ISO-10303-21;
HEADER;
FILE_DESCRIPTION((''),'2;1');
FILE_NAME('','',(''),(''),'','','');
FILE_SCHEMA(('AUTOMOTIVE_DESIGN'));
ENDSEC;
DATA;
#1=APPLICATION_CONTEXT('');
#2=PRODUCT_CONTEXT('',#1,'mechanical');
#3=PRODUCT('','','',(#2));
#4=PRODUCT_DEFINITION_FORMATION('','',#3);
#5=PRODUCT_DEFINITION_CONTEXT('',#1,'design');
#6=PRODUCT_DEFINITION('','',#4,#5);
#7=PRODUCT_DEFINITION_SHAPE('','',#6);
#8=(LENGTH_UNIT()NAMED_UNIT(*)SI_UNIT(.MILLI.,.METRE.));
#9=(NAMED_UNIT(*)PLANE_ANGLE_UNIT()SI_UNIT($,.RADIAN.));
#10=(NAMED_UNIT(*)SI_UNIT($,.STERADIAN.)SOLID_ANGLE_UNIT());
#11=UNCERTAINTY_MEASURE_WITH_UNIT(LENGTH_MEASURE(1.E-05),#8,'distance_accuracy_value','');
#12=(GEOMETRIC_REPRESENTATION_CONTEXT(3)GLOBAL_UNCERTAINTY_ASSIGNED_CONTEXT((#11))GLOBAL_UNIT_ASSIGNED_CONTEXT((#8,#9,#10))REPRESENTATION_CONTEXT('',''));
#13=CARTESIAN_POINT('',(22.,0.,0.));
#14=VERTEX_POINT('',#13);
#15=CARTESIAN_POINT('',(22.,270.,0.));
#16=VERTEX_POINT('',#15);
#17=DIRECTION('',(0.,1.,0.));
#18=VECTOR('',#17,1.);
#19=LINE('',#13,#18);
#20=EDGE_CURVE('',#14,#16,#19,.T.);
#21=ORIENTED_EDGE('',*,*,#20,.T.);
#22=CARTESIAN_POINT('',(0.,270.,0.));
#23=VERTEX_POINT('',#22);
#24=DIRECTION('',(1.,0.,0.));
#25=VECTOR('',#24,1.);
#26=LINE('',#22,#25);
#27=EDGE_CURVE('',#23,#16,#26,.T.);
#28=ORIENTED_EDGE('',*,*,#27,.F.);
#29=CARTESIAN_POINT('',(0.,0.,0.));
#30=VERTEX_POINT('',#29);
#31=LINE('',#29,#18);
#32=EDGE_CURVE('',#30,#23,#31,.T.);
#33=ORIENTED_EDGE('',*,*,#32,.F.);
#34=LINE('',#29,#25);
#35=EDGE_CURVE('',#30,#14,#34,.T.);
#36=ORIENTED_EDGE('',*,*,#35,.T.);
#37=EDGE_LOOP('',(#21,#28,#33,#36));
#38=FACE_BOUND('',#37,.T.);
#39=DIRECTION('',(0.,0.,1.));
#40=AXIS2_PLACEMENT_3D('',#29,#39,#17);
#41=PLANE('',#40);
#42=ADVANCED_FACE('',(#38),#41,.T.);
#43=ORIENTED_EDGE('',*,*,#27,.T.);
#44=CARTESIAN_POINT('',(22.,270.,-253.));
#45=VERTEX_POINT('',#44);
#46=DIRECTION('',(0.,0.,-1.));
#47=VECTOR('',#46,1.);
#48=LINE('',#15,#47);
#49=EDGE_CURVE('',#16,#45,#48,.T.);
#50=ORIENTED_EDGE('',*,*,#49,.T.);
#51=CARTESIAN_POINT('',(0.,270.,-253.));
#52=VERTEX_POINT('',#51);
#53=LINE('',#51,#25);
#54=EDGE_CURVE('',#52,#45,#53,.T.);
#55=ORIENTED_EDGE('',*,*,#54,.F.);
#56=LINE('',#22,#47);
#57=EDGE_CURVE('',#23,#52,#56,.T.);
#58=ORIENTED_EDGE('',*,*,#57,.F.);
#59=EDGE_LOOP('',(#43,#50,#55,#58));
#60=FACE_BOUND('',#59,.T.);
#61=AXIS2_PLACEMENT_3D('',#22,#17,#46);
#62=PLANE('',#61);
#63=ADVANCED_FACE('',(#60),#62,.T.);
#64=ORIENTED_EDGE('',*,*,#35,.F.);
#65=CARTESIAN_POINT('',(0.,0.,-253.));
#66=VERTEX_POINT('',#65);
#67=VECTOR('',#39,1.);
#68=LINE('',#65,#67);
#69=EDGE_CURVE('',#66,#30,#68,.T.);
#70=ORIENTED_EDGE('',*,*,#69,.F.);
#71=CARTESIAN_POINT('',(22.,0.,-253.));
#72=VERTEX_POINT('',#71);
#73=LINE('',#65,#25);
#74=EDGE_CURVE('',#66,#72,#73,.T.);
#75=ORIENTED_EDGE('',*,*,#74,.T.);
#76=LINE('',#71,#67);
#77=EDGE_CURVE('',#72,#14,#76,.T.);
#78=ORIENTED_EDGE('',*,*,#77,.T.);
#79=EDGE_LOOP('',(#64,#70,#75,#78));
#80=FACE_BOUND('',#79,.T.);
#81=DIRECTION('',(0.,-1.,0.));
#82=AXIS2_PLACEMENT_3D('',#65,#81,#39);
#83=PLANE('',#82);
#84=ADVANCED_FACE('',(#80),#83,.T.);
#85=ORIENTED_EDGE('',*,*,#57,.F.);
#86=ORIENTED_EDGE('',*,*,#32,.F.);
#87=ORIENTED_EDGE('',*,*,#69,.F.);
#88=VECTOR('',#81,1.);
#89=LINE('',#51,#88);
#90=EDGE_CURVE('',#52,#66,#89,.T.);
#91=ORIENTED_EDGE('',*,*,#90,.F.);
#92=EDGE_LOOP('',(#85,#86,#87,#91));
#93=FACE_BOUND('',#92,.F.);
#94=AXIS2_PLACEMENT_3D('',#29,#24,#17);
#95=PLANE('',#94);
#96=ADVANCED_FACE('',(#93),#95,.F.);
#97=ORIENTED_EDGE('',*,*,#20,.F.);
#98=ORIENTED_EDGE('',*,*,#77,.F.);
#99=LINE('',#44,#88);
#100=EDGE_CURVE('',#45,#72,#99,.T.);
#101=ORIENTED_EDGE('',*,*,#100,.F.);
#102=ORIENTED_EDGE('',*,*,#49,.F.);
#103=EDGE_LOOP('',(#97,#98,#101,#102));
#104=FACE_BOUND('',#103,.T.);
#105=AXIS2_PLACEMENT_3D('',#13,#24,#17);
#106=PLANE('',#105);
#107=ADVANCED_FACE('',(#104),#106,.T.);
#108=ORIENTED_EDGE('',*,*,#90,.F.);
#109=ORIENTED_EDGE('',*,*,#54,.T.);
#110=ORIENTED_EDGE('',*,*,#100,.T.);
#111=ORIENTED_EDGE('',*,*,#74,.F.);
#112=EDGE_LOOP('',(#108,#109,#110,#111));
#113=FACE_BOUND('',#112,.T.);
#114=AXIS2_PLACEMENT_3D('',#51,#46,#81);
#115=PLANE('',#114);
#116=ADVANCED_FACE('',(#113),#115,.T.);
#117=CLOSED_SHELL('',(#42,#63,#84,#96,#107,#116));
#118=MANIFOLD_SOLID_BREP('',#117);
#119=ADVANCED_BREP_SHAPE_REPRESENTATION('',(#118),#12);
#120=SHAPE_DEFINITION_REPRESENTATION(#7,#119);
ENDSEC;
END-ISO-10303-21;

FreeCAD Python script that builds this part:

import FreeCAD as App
import Part
import Sketcher


def add_polygon(sketch, points):
    """Adds a closed chain of lines whose ends are joined by coincident constraints."""
    first, n = sketch.GeometryCount, len(points)
    for a, b in zip(points, points[1:] + points[:1]):
        sketch.addGeometry(Part.LineSegment(App.Vector(*a, 0), App.Vector(*b, 0)), False)
    for i in range(n):
        sketch.addConstraint(Sketcher.Constraint("Coincident", first + i, 2, first + (i + 1) % n, 1))

doc = App.newDocument("Part")
body = doc.addObject("PartDesign::Body", "Body")

# Sketch on YZ plane
sketch1 = doc.addObject("Sketcher::SketchObject", "Sketch")
body.addObject(sketch1)
sketch1.AttachmentSupport = (doc.YZ_Plane, [""])
sketch1.MapMode = "FlatFace"
add_polygon(sketch1, [(270, 0), (0, 0), (0, -253), (270, -253)])  # lines 0-3
sketch1.addConstraint(Sketcher.Constraint("Horizontal", 0))
sketch1.addConstraint(Sketcher.Constraint("Vertical", 1))
sketch1.addConstraint(Sketcher.Constraint("Horizontal", 2))
sketch1.addConstraint(Sketcher.Constraint("Vertical", 3))
sketch1.addConstraint(Sketcher.Constraint("Coincident", 0, 2, -1, 1))
sketch1.addConstraint(Sketcher.Constraint("DistanceX", 0, 2, 0, 1, 270.0))
sketch1.addConstraint(Sketcher.Constraint("DistanceY", 1, 2, 1, 1, 253.0))
pad1 = doc.addObject("PartDesign::Pad", "Pad")
body.addObject(pad1)
pad1.Profile = sketch1
pad1.Length = 22

doc.recompute()
